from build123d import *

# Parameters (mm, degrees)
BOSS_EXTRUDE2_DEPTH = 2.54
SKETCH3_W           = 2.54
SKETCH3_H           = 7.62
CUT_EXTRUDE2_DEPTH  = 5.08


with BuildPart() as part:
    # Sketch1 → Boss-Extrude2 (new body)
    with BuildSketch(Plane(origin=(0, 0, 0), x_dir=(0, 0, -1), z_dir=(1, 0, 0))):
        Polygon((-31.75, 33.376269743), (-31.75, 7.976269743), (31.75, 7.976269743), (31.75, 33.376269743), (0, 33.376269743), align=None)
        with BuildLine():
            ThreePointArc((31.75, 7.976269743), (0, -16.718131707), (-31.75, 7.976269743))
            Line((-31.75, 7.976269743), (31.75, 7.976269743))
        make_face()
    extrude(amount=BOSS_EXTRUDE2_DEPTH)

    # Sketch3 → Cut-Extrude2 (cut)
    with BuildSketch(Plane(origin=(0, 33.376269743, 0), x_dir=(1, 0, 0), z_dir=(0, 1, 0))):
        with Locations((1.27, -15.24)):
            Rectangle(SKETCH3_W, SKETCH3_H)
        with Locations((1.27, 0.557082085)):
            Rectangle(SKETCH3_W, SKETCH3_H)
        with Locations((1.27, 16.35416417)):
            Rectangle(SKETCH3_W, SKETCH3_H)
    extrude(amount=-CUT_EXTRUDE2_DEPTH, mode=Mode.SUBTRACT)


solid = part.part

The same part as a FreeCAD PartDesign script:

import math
import FreeCAD as App
import Part
import Sketcher
Q = App.Units.Quantity

doc = App.newDocument("Part")
body = doc.addObject("PartDesign::Body", "Body")

sketch1 = body.newObject("Sketcher::SketchObject", "Sketch")
sketch1.AttachmentSupport = (doc.getObject("YZ_Plane"), [""])
sketch1.MapMode = "FlatFace"
sketch1.addGeometry([
    Part.LineSegment(App.Vector(33.37627, 31.75, 0), App.Vector(7.97627, 31.75, 0)),
    Part.ArcOfCircle(Part.Circle(App.Vector(16.039819, 0, 0), App.Vector(0, 0, 1), 32.757951), math.radians(104.250129), math.radians(255.749871)),
    Part.LineSegment(App.Vector(7.97627, -31.75, 0), App.Vector(33.37627, -31.75, 0)),
    Part.LineSegment(App.Vector(33.37627, -31.75, 0), App.Vector(33.37627, 31.75, 0)),
], False)
sketch1.addConstraint([
    Sketcher.Constraint("Coincident", 0, 2, 1, 1),
    Sketcher.Constraint("Coincident", 1, 2, 2, 1),
    Sketcher.Constraint("Coincident", 2, 2, 3, 1),
    Sketcher.Constraint("Coincident", 3, 2, 0, 1),
    Sketcher.Constraint("Horizontal", 0),
    Sketcher.Constraint("Horizontal", 2),
    Sketcher.Constraint("Vertical", 3),
    Sketcher.Constraint("Symmetric", 0, 2, 1, 2, -1),
    Sketcher.Constraint("DistanceX", 0, 2, 0, 1, Q("1 in")),
    Sketcher.Constraint("DistanceY", 3, 1, 3, 2, Q("2.5 in")),
    Sketcher.Constraint("Radius", 1, Q("32.757951 mm")),
    Sketcher.Constraint("DistanceX", -1, 1, 1, 3, Q("16.039819 mm")),
])
pad1 = body.newObject("PartDesign::Pad", "Pad")
pad1.Profile = sketch1
pad1.Length = Q("0.1 in")

sketch2 = body.newObject("Sketcher::SketchObject", "Sketch001")
sketch2.AttachmentSupport = (doc.getObject("XZ_Plane"), [""])
sketch2.MapMode = "FlatFace"
sketch2.AttachmentOffset = App.Placement(App.Vector(0, 0, -33.37627), App.Rotation())
sketch2.addGeometry([
    Part.LineSegment(App.Vector(0, 11.43, 0), App.Vector(0, 19.05, 0)),
    Part.LineSegment(App.Vector(0, 19.05, 0), App.Vector(2.54, 19.05, 0)),
    Part.LineSegment(App.Vector(2.54, 19.05, 0), App.Vector(2.54, 11.43, 0)),
    Part.LineSegment(App.Vector(2.54, 11.43, 0), App.Vector(0, 11.43, 0)),
    Part.LineSegment(App.Vector(0, -4.367082, 0), App.Vector(0, 3.252918, 0)),
    Part.LineSegment(App.Vector(0, 3.252918, 0), App.Vector(2.54, 3.252918, 0)),
    Part.LineSegment(App.Vector(2.54, 3.252918, 0), App.Vector(2.54, -4.367082, 0)),
    Part.LineSegment(App.Vector(2.54, -4.367082, 0), App.Vector(0, -4.367082, 0)),
    Part.LineSegment(App.Vector(0, -20.164164, 0), App.Vector(0, -12.544164, 0)),
    Part.LineSegment(App.Vector(0, -12.544164, 0), App.Vector(2.54, -12.544164, 0)),
    Part.LineSegment(App.Vector(2.54, -12.544164, 0), App.Vector(2.54, -20.164164, 0)),
    Part.LineSegment(App.Vector(2.54, -20.164164, 0), App.Vector(0, -20.164164, 0)),
], False)
sketch2.addConstraint([
    Sketcher.Constraint("Coincident", 0, 2, 1, 1),
    Sketcher.Constraint("Coincident", 1, 2, 2, 1),
    Sketcher.Constraint("Coincident", 2, 2, 3, 1),
    Sketcher.Constraint("Coincident", 3, 2, 0, 1),
    Sketcher.Constraint("Coincident", 4, 2, 5, 1),
    Sketcher.Constraint("Coincident", 5, 2, 6, 1),
    Sketcher.Constraint("Coincident", 6, 2, 7, 1),
    Sketcher.Constraint("Coincident", 7, 2, 4, 1),
    Sketcher.Constraint("Coincident", 8, 2, 9, 1),
    Sketcher.Constraint("Coincident", 9, 2, 10, 1),
    Sketcher.Constraint("Coincident", 10, 2, 11, 1),
    Sketcher.Constraint("Coincident", 11, 2, 8, 1),
    Sketcher.Constraint("Vertical", 0),
    Sketcher.Constraint("Horizontal", 1),
    Sketcher.Constraint("Vertical", 2),
    Sketcher.Constraint("Horizontal", 3),
    Sketcher.Constraint("Vertical", 4),
    Sketcher.Constraint("Horizontal", 5),
    Sketcher.Constraint("Vertical", 6),
    Sketcher.Constraint("Horizontal", 7),
    Sketcher.Constraint("Vertical", 8),
    Sketcher.Constraint("Horizontal", 9),
    Sketcher.Constraint("Vertical", 10),
    Sketcher.Constraint("Horizontal", 11),
    Sketcher.Constraint("PointOnObject", 0, 2, -2),
    Sketcher.Constraint("PointOnObject", 4, 2, -2),
    Sketcher.Constraint("PointOnObject", 8, 2, -2),
    Sketcher.Constraint("Vertical", 2, 2, 5, 2),
    Sketcher.Constraint("Vertical", 6, 2, 9, 2),
    Sketcher.Constraint("Equal", 2, 4),
    Sketcher.Constraint("Equal", 6, 8),
    Sketcher.Constraint("DistanceX", 1, 1, 1, 2, Q("0.1 in")),
    Sketcher.Constraint("DistanceY", 0, 1, 0, 2, Q("0.3 in")),
    Sketcher.Constraint("DistanceY", -1, 1, 0, 2, Q("0.75 in")),
    Sketcher.Constraint("DistanceY", -1, 1, 4, 2, Q("3.252918 mm")),
    Sketcher.Constraint("DistanceY", 8, 2, -1, 1, Q("12.544164 mm")),
])
pocket1 = body.newObject("PartDesign::Pocket", "Pocket")
pocket1.Profile = sketch2
pocket1.Length = Q("0.2 in")
pocket1.Reversed = True

doc.recompute()
